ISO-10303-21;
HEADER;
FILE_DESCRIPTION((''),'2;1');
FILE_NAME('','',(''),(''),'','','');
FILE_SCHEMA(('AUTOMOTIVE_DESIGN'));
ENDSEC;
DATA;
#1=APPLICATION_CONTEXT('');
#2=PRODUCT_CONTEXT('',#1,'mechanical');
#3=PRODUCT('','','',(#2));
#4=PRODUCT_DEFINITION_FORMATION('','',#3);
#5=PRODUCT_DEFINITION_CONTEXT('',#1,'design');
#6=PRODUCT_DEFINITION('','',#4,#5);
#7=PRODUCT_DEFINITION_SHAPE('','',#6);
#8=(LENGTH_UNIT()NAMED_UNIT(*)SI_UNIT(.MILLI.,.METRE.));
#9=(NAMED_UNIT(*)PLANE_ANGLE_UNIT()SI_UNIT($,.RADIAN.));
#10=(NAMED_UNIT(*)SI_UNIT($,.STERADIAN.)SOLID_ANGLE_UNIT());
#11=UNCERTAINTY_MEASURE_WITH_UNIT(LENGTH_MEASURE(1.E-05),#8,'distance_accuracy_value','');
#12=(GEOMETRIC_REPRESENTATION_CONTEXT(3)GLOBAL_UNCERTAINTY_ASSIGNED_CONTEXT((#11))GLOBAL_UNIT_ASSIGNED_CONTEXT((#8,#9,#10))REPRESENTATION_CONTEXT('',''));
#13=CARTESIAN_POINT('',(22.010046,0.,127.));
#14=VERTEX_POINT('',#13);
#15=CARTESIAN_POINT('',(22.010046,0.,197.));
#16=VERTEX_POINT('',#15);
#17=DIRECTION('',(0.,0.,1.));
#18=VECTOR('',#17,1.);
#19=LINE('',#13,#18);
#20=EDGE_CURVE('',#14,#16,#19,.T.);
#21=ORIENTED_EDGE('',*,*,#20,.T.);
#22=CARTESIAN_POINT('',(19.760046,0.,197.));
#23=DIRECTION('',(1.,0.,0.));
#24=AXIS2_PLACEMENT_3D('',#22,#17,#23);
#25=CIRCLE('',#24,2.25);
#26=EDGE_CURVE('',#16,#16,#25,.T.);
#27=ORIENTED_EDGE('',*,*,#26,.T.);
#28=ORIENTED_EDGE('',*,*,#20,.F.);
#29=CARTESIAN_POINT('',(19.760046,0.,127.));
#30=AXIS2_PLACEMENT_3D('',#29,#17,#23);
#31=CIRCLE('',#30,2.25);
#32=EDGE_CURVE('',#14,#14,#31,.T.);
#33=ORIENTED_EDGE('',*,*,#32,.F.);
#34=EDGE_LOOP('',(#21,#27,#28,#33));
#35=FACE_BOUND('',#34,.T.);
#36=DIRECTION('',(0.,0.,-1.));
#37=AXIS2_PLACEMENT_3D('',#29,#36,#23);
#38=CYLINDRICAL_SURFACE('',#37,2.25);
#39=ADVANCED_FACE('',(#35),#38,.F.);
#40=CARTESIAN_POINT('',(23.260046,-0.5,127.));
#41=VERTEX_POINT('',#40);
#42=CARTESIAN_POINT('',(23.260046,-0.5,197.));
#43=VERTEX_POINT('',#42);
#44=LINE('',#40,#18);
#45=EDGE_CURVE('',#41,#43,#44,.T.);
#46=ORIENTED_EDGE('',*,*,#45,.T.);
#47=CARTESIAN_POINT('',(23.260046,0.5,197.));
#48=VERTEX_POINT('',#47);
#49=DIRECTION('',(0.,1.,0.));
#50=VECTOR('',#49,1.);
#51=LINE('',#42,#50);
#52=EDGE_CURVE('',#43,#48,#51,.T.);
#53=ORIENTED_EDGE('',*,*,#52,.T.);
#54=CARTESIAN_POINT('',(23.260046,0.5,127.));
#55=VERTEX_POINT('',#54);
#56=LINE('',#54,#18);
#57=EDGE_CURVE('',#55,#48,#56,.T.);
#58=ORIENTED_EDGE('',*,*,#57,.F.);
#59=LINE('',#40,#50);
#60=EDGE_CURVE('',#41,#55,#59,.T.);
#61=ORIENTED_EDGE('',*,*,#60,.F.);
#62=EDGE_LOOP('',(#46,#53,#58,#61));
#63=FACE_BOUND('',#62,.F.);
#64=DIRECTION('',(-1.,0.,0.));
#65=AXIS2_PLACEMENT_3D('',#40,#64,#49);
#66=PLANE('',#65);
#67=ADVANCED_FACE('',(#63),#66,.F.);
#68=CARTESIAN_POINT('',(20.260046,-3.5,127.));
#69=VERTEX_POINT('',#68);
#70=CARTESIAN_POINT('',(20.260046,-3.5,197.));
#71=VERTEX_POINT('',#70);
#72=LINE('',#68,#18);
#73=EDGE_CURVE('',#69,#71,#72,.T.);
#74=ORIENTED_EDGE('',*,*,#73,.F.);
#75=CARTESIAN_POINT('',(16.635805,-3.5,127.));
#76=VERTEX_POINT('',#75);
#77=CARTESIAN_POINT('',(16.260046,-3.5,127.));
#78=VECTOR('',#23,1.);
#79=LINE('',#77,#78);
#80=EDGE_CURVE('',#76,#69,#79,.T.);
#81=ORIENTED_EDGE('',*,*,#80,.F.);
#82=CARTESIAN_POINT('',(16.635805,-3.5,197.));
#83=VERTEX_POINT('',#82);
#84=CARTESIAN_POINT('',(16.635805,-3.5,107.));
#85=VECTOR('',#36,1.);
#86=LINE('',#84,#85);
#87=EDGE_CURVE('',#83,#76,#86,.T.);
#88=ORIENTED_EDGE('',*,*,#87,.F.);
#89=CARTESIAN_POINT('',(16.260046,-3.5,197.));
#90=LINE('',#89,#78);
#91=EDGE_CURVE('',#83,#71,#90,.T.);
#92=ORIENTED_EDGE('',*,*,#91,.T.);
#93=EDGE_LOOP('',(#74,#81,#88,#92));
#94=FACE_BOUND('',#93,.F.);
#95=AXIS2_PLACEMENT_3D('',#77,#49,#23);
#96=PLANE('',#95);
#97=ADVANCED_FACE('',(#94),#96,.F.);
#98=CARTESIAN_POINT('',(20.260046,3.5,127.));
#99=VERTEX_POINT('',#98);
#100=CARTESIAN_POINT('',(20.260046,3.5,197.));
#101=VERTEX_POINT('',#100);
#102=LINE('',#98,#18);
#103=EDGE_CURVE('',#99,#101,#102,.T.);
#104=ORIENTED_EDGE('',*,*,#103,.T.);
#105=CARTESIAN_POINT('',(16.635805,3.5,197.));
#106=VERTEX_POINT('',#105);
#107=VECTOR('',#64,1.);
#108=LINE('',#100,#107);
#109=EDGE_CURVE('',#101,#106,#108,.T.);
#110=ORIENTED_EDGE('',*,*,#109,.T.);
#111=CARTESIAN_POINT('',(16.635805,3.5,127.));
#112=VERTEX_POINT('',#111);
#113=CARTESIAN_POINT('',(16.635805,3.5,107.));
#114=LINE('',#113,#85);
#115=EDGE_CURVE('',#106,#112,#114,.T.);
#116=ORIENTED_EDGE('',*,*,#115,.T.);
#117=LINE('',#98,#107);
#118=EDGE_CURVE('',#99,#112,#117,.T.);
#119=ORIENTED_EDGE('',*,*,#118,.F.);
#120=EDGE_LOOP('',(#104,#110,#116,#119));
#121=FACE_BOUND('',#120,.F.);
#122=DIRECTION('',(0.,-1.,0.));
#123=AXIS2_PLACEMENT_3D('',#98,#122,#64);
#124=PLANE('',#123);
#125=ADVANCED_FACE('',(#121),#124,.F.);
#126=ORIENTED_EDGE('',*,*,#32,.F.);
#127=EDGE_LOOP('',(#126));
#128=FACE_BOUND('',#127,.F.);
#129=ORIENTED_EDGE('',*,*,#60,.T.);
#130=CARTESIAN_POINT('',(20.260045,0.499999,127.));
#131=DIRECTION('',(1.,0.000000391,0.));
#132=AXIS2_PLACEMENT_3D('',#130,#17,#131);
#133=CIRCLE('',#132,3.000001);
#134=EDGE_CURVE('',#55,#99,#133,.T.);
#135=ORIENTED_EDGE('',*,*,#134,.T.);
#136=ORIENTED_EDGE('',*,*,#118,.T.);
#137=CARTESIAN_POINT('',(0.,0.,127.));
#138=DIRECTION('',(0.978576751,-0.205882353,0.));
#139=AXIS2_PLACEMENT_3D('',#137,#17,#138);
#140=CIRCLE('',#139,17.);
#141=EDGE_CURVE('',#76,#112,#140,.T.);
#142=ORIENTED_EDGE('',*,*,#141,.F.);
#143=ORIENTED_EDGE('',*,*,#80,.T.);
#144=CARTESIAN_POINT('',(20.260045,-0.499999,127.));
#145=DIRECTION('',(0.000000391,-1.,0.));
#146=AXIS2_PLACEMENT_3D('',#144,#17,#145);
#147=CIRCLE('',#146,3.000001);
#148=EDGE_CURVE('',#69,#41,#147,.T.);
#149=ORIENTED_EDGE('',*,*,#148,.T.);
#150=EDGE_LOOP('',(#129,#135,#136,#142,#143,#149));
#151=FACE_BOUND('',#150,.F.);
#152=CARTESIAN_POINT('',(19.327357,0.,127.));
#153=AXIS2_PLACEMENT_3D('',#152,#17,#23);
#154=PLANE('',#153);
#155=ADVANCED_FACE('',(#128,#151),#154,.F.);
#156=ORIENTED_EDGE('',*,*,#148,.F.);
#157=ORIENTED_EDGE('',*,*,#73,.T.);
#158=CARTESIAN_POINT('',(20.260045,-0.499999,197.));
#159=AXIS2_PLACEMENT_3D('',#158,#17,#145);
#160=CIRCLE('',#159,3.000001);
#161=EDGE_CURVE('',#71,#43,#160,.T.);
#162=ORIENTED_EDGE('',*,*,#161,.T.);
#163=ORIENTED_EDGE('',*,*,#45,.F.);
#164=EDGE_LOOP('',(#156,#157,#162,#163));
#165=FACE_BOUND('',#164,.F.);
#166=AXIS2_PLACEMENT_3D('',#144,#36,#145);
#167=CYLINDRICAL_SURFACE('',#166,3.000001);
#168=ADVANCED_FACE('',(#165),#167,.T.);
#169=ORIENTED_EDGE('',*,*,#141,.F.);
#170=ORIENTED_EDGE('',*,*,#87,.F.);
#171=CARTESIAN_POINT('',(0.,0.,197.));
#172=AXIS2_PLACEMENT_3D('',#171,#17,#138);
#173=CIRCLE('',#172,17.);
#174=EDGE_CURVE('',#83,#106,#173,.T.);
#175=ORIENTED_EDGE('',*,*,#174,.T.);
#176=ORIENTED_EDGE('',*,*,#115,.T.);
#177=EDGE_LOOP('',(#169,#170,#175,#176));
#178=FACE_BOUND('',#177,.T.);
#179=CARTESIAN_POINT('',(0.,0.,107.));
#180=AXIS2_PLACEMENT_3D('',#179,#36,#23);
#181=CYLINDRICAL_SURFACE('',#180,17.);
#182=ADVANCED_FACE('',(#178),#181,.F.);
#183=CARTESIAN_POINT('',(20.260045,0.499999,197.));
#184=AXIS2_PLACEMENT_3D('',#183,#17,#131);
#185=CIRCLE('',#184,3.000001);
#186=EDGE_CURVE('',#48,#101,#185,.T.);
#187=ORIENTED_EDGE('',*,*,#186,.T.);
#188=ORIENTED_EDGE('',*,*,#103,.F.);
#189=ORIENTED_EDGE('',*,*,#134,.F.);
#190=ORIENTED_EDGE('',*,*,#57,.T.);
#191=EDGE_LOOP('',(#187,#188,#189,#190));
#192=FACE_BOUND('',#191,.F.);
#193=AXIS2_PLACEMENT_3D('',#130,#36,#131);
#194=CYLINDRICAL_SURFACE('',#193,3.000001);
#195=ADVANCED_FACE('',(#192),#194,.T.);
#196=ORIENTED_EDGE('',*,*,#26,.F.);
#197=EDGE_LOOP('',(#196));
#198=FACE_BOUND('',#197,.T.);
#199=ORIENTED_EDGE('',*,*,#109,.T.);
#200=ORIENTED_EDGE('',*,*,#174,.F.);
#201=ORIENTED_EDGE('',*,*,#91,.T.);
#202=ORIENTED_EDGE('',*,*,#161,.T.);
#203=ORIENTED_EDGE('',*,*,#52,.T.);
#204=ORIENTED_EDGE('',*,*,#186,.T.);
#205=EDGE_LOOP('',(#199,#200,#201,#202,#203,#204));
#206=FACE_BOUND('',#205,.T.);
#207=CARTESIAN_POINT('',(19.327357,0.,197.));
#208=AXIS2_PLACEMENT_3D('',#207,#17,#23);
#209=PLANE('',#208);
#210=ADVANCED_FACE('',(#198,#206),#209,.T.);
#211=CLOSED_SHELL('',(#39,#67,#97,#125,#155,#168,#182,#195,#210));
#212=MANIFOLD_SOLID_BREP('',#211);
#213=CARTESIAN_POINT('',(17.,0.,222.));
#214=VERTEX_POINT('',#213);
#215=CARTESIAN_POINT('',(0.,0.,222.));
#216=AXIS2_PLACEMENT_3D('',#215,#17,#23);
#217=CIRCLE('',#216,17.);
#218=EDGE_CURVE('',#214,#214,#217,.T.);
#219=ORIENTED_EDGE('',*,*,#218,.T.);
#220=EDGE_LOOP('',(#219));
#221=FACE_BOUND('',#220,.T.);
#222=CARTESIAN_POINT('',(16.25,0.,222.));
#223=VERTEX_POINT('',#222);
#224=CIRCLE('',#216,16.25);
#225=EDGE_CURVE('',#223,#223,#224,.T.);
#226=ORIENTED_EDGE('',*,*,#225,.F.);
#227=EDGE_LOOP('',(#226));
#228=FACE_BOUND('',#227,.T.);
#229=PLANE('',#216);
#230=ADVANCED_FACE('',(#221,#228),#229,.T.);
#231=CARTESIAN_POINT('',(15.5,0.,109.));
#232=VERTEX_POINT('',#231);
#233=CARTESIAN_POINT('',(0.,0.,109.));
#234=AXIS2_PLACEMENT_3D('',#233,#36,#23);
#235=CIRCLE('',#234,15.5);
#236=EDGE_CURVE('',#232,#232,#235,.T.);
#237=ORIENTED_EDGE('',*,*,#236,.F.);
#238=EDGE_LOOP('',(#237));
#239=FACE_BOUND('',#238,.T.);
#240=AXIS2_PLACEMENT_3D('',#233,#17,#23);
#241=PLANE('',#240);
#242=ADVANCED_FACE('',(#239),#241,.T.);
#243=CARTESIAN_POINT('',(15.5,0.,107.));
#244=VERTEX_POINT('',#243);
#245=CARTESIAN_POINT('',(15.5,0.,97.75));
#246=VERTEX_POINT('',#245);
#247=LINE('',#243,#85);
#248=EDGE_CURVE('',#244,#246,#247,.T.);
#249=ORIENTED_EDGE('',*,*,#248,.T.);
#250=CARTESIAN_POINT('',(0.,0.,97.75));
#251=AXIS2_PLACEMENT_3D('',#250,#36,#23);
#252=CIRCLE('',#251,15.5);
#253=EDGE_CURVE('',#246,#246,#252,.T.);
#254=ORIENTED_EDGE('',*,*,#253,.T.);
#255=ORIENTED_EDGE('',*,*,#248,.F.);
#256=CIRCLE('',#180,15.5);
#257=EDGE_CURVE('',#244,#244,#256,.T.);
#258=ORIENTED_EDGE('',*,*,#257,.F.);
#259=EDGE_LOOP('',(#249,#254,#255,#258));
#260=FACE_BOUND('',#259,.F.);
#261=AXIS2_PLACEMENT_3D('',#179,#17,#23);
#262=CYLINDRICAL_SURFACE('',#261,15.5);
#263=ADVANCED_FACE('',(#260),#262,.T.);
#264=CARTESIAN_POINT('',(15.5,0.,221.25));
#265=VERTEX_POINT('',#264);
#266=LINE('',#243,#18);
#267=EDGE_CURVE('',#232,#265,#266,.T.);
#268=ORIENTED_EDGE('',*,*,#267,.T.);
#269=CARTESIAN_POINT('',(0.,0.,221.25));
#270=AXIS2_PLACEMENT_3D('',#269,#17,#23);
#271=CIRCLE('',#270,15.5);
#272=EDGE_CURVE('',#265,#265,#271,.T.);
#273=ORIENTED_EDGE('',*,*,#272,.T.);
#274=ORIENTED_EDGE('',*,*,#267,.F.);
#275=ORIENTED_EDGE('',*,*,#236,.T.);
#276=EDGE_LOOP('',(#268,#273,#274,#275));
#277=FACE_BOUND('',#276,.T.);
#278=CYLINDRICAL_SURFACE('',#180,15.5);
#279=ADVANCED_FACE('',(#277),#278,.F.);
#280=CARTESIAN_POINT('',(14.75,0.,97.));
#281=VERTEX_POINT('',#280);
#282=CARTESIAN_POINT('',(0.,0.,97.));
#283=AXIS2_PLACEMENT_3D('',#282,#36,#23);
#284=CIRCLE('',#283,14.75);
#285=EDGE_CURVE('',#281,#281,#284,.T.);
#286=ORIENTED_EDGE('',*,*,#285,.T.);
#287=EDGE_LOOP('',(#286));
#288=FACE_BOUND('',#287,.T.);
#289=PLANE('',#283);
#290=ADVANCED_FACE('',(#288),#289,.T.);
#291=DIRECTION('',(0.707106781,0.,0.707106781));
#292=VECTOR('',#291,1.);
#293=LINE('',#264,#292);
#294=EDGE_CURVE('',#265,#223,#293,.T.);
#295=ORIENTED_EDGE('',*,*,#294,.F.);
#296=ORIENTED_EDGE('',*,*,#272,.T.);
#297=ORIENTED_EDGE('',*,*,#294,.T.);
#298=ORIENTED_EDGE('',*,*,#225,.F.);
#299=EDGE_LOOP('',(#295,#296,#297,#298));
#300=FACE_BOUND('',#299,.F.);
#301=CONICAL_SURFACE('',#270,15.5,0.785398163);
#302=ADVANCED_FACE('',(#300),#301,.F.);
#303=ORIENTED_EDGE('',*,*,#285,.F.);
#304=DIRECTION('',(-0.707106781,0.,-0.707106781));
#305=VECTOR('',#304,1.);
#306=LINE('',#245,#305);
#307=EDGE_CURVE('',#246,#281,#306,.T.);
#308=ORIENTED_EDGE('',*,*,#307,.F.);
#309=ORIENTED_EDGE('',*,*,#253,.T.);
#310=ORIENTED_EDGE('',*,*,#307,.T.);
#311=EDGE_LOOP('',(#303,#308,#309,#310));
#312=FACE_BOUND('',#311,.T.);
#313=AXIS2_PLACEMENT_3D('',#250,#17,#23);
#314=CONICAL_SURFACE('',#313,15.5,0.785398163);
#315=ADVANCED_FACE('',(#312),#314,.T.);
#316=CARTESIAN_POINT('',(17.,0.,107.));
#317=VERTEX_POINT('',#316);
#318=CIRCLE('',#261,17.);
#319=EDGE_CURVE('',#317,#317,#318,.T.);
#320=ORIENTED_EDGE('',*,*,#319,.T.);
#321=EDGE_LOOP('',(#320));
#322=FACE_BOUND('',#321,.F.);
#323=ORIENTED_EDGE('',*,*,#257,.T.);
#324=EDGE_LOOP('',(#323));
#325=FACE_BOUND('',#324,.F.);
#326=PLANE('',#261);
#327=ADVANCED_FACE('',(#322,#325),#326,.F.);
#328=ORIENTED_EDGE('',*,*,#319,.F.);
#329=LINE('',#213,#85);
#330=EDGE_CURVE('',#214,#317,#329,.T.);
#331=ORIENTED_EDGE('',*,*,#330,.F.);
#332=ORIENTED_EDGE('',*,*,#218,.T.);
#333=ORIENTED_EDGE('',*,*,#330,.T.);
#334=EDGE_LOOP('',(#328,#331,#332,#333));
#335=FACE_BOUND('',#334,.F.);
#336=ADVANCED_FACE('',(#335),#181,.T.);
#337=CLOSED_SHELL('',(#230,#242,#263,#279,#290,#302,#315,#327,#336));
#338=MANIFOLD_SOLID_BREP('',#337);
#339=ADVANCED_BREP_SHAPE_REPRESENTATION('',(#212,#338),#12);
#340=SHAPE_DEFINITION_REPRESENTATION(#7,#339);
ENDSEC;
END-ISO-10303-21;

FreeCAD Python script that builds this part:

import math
import FreeCAD as App
import Part
import Sketcher
from FreeCAD import Vector


def edges_at(feature, points):
    """Names of the edges that pass closest to the given points."""
    edges = feature.Shape.Edges
    near = lambda p: min(range(len(edges)), key=lambda i: edges[i].distToShape(Part.Vertex(*p))[0])
    return sorted({f"Edge{near(p) + 1}" for p in points})

doc = App.newDocument("Part")
body = doc.addObject("PartDesign::Body", "Body")

sketch1 = doc.addObject("Sketcher::SketchObject", "Sketch")
body.addObject(sketch1)
sketch1.AttachmentSupport = (doc.XY_Plane, [""])
sketch1.MapMode = "FlatFace"
sketch1.AttachmentOffset = App.Placement(Vector(0, 0, 107), App.Rotation())
sketch1.addGeometry(Part.Circle(Vector(0, 0, 0), Vector(0, 0, 1), 17), False)
sketch1.addGeometry(Part.Circle(Vector(0, 0, 0), Vector(0, 0, 1), 16), False)
sketch1.addConstraint(Sketcher.Constraint("Coincident", 0, 3, -1, 1))
sketch1.addConstraint(Sketcher.Constraint("Coincident", 1, 3, -1, 1))
sketch1.addConstraint(Sketcher.Constraint("Diameter", 0, 34.0))
sketch1.addConstraint(Sketcher.Constraint("Diameter", 1, 31.0))
pad1 = doc.addObject("PartDesign::Pad", "Pad")
body.addObject(pad1)
pad1.Profile = sketch1
pad1.Length = 115
doc.recompute()

chamfer = doc.addObject("PartDesign::Chamfer", "Chamfer")
body.addObject(chamfer)
chamfer.Base = (pad1, edges_at(pad1, [(-15.5, 0, 222)]))
chamfer.Size = 0.75

sketch2 = doc.addObject("Sketcher::SketchObject", "Sketch001")
body.addObject(sketch2)
sketch2.AttachmentSupport = (doc.XY_Plane, [""])
sketch2.MapMode = "FlatFace"
sketch2.AttachmentOffset = App.Placement(Vector(0, 0, 107), App.Rotation())
sketch2.addGeometry(Part.Circle(Vector(0, 0, 0), Vector(0, 0, 1), 17), False)
sketch2.addConstraint(Sketcher.Constraint("Coincident", 0, 3, -1, 1))
sketch2.addConstraint(Sketcher.Constraint("Diameter", 0, 34.0))
pad2 = doc.addObject("PartDesign::Pad", "Pad001")
body.addObject(pad2)
pad2.Profile = sketch2
pad2.Length = 2

sketch3 = doc.addObject("Sketcher::SketchObject", "Sketch002")
body.addObject(sketch3)
sketch3.AttachmentSupport = (doc.XY_Plane, [""])
sketch3.MapMode = "FlatFace"
sketch3.AttachmentOffset = App.Placement(Vector(0, 0, 107), App.Rotation())
sketch3.addGeometry(Part.Circle(Vector(0, 0, 0), Vector(0, 0, 1), 16), False)
sketch3.addConstraint(Sketcher.Constraint("Coincident", 0, 3, -1, 1))
sketch3.addConstraint(Sketcher.Constraint("Diameter", 0, 31.0))
pad3 = doc.addObject("PartDesign::Pad", "Pad002")
body.addObject(pad3)
pad3.Profile = sketch3
pad3.Length = 10
pad3.Reversed = True
doc.recompute()

chamfer2 = doc.addObject("PartDesign::Chamfer", "Chamfer001")
body.addObject(chamfer2)
chamfer2.Base = (pad3, edges_at(pad3, [(-15.5, 0, 97)]))
chamfer2.Size = 0.75
body2 = doc.addObject("PartDesign::Body", "Body001")

sketch4 = doc.addObject("Sketcher::SketchObject", "Sketch003")
body2.addObject(sketch4)
sketch4.AttachmentSupport = (doc.getObject("XY_Plane001"), [""])
sketch4.MapMode = "FlatFace"
sketch4.AttachmentOffset = App.Placement(Vector(0, 0, 127), App.Rotation())
sketch4.addGeometry(Part.LineSegment(Vector(20.3, 3.5, 0), Vector(16.3, 3.5, 0)), False)
sketch4.addGeometry(Part.LineSegment(Vector(16.3, 3.5, 0), Vector(16.3, -3.5, 0)), False)
sketch4.addGeometry(Part.LineSegment(Vector(16.3, -3.5, 0), Vector(20.3, -3.5, 0)), False)
sketch4.addGeometry(Part.ArcOfCircle(Part.Circle(Vector(20.3, -0.5, 0), Vector(0, 0, 1), 3), math.radians(-90), math.radians(0)), False)
sketch4.addGeometry(Part.LineSegment(Vector(23.3, -0.5, 0), Vector(23.3, 0.5, 0)), False)
sketch4.addGeometry(Part.ArcOfCircle(Part.Circle(Vector(20.3, 0.5, 0), Vector(0, 0, 1), 3), math.radians(0), math.radians(90)), False)
sketch4.addGeometry(Part.Circle(Vector(19.8, 0, 0), Vector(0, 0, 1), 2.2), False)
sketch4.addConstraint(Sketcher.Constraint("Coincident", 0, 2, 1, 1))
sketch4.addConstraint(Sketcher.Constraint("Coincident", 1, 2, 2, 1))
sketch4.addConstraint(Sketcher.Constraint("Tangent", 2, 2, 3, 1))
sketch4.addConstraint(Sketcher.Constraint("Tangent", 3, 2, 4, 1))
sketch4.addConstraint(Sketcher.Constraint("Tangent", 4, 2, 5, 1))
sketch4.addConstraint(Sketcher.Constraint("Tangent", 5, 2, 0, 1))
sketch4.addConstraint(Sketcher.Constraint("Horizontal", 0))
sketch4.addConstraint(Sketcher.Constraint("Vertical", 1))
sketch4.addConstraint(Sketcher.Constraint("Horizontal", 2))
sketch4.addConstraint(Sketcher.Constraint("Vertical", 4))
sketch4.addConstraint(Sketcher.Constraint("Equal", 3, 5))
sketch4.addConstraint(Sketcher.Constraint("PointOnObject", 6, 3, -1))
sketch4.addConstraint(Sketcher.Constraint("Radius", 3, 3.000001))
sketch4.addConstraint(Sketcher.Constraint("Diameter", 6, 4.5))
sketch4.addConstraint(Sketcher.Constraint("DistanceX", 0, 2, 0, 1, 4.0))
sketch4.addConstraint(Sketcher.Constraint("DistanceY", 1, 2, 1, 1, 7.0))
sketch4.addConstraint(Sketcher.Constraint("DistanceY", 3, 3, -1, 1, 0.499999))
sketch4.addConstraint(Sketcher.Constraint("DistanceX", 6, 3, 3, 3, 0.499999))
sketch4.addConstraint(Sketcher.Constraint("DistanceX", -1, 1, 3, 3, 20.260045))
pad4 = doc.addObject("PartDesign::Pad", "Pad003")
body2.addObject(pad4)
pad4.Profile = sketch4
pad4.Length = 70
doc.recompute()

body3 = doc.addObject("PartDesign::Body", "Body002")
body3.BaseFeature = body
boolean = doc.addObject("PartDesign::Boolean", "Boolean")
body2.addObject(boolean)
boolean.Type = "Cut"
boolean.addObjects([body3])
doc.recompute()

doc.recompute()
